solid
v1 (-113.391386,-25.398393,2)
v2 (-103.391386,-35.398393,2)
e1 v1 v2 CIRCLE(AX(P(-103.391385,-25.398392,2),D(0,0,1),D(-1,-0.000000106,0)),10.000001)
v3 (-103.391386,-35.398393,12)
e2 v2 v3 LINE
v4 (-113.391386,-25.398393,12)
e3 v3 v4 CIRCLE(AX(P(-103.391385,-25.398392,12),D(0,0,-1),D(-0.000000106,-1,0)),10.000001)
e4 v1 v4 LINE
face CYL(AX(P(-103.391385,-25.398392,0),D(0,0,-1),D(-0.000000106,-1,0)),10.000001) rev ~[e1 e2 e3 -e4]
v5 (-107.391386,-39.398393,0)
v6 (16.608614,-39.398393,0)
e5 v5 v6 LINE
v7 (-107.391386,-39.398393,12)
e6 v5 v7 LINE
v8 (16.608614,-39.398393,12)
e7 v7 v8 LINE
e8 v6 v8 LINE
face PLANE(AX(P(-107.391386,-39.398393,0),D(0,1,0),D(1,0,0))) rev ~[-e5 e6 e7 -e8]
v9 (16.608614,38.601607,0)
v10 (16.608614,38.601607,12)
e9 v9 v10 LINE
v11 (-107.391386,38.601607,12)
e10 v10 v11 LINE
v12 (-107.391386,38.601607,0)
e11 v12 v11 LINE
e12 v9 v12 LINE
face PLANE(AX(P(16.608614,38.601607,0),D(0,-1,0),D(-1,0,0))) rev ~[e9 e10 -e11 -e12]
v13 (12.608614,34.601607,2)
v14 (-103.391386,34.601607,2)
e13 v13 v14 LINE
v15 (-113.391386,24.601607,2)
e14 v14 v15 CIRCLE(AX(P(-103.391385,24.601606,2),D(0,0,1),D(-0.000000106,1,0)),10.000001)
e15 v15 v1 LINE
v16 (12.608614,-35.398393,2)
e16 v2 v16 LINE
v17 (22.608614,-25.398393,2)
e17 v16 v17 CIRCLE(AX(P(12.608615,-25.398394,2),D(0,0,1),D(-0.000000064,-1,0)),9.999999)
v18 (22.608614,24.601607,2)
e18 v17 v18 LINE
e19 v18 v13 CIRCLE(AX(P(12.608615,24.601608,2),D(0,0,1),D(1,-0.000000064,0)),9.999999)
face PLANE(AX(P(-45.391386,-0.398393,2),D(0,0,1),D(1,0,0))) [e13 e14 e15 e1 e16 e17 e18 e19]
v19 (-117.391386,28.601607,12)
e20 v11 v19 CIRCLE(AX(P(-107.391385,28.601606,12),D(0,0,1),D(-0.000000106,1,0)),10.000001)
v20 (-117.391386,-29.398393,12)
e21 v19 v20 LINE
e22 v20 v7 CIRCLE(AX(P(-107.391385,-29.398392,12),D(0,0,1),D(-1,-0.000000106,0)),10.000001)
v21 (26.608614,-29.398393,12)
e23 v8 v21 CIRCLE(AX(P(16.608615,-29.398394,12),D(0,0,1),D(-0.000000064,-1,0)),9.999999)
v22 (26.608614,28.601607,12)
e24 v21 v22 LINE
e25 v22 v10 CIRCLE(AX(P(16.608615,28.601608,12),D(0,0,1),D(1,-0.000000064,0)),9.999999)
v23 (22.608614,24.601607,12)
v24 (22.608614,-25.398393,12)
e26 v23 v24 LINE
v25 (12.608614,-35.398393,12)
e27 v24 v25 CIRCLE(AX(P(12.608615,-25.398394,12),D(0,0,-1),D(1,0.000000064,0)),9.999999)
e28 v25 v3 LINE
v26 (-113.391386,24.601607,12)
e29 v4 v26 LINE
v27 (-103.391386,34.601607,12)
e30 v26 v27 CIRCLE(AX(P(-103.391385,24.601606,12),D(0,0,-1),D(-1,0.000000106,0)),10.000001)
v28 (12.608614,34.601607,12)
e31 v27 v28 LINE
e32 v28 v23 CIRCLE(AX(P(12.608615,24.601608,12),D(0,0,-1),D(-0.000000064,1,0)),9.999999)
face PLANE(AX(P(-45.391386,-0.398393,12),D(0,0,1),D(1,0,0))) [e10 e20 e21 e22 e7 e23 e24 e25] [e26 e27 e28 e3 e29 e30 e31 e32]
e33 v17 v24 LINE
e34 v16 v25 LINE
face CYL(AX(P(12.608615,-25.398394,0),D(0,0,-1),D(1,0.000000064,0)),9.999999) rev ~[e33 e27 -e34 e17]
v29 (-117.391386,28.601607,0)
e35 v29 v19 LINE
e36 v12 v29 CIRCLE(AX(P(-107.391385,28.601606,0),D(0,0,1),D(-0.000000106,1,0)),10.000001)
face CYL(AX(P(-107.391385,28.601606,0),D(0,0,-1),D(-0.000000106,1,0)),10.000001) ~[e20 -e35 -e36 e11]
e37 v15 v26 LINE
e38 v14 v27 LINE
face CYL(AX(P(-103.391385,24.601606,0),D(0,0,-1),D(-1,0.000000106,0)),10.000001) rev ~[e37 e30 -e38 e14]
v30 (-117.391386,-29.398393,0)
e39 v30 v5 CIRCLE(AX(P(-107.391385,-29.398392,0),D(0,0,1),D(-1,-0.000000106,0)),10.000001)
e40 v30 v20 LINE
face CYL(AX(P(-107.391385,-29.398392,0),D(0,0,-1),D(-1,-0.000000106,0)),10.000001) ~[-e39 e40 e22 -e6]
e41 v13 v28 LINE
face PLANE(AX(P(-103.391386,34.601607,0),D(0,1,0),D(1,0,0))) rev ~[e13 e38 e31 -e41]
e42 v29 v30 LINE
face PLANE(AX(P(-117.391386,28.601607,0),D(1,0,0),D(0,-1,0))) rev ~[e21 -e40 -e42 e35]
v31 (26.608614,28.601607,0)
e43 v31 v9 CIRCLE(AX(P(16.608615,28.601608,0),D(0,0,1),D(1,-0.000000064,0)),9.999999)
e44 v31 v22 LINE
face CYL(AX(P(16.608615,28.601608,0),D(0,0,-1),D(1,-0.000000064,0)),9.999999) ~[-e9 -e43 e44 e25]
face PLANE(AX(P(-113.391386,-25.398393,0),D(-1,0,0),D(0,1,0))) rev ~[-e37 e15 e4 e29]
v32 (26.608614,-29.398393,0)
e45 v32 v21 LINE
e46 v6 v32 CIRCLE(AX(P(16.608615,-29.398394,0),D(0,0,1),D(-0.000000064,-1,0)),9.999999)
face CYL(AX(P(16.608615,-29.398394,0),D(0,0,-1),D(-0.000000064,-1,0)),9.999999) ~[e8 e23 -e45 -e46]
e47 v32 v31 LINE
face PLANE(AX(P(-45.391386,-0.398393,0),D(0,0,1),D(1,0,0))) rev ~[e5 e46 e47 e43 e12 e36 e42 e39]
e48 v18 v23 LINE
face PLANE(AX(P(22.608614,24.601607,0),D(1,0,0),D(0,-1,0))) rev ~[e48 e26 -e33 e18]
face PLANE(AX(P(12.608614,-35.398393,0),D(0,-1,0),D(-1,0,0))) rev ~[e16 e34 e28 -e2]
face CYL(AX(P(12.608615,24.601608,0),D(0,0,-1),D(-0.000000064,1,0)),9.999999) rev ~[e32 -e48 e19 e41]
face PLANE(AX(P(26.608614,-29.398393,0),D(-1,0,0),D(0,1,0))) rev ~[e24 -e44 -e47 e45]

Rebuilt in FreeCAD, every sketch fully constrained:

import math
import FreeCAD as App
import Part
import Sketcher

V = App.Vector
Q = App.Units.Quantity

doc = App.newDocument("Part")
params = doc.addObject("Spreadsheet::Sheet", "Params")
for row, (alias, value) in enumerate([
    ("sketch1_radius", "9.999999 mm"),
    ("sketch1_width", "116 mm"),
    ("sketch1_height", "50 mm"),
    ("pad1_length", "2 mm"),
    ("sketch2_radius", "9.999999 mm"),
    ("sketch2_width", "124 mm"),
    ("sketch2_width2", "116 mm"),
    ("sketch2_height", "58 mm"),
    ("sketch2_height2", "50 mm"),
    ("pad2_length", "12 mm"),
], start=1):
    params.set(f"A{row}", alias)
    params.set(f"B{row}", "=" + value)
    params.setAlias(f"B{row}", alias)

body = doc.addObject("PartDesign::Body", "Body")

sketch1 = body.newObject("Sketcher::SketchObject", "Sketch")
sketch1.AttachmentSupport = (doc.getObject("XY_Plane"), [""])
sketch1.MapMode = "FlatFace"
sketch1.addGeometry([
    Part.ArcOfCircle(Part.Circle(V(13, 25, 0), V(0, 0, 1), 10), math.radians(0), math.radians(90)),
    Part.LineSegment(V(13, 35, 0), V(-103, 35, 0)),
    Part.ArcOfCircle(Part.Circle(V(-103, 25, 0), V(0, 0, 1), 10), math.radians(90), math.radians(180)),
    Part.LineSegment(V(-113, 25, 0), V(-113, -25, 0)),
    Part.ArcOfCircle(Part.Circle(V(-103, -25, 0), V(0, 0, 1), 10), math.radians(-180), math.radians(-90)),
    Part.LineSegment(V(-103, -35, 0), V(13, -35, 0)),
    Part.ArcOfCircle(Part.Circle(V(13, -25, 0), V(0, 0, 1), 10), math.radians(-90), math.radians(0)),
    Part.LineSegment(V(23, -25, 0), V(23, 25, 0)),
], False)
sketch1.addConstraint([
    Sketcher.Constraint("Tangent", 0, 2, 1, 1),
    Sketcher.Constraint("Tangent", 1, 2, 2, 1),
    Sketcher.Constraint("Tangent", 2, 2, 3, 1),
    Sketcher.Constraint("Tangent", 3, 2, 4, 1),
    Sketcher.Constraint("Tangent", 4, 2, 5, 1),
    Sketcher.Constraint("Tangent", 5, 2, 6, 1),
    Sketcher.Constraint("Tangent", 6, 2, 7, 1),
    Sketcher.Constraint("Tangent", 7, 2, 0, 1),
    Sketcher.Constraint("Horizontal", 1),
    Sketcher.Constraint("Vertical", 3),
    Sketcher.Constraint("Horizontal", 5),
    Sketcher.Constraint("Vertical", 7),
    Sketcher.Constraint("Equal", 0, 2),
    Sketcher.Constraint("Equal", 2, 4),
    Sketcher.Constraint("Equal", 4, 6),
    Sketcher.Constraint("Radius", 0, Q("9.999999 mm")),
    Sketcher.Constraint("DistanceX", 1, 2, 1, 1, Q("116 mm")),
    Sketcher.Constraint("DistanceY", 3, 2, 3, 1, Q("50 mm")),
    Sketcher.Constraint("DistanceY", 4, 3, -1, 1, Q("25.398392 mm")),
    Sketcher.Constraint("DistanceX", -1, 1, 0, 3, Q("12.608615 mm")),
])
sketch1.setExpression("Constraints[15]", "Params.sketch1_radius")
sketch1.setExpression("Constraints[16]", "Params.sketch1_width")
sketch1.setExpression("Constraints[17]", "Params.sketch1_height")
pad1 = body.newObject("PartDesign::Pad", "Pad")
pad1.Profile = sketch1
pad1.setExpression("Length", "Params.pad1_length")

sketch2 = body.newObject("Sketcher::SketchObject", "Sketch001")
sketch2.AttachmentSupport = (doc.getObject("XY_Plane"), [""])
sketch2.MapMode = "FlatFace"
sketch2.addGeometry([
    Part.ArcOfCircle(Part.Circle(V(17, 29, 0), V(0, 0, 1), 10), math.radians(0), math.radians(90)),
    Part.LineSegment(V(17, 39, 0), V(-107, 39, 0)),
    Part.ArcOfCircle(Part.Circle(V(-107, 29, 0), V(0, 0, 1), 10), math.radians(90), math.radians(180)),
    Part.LineSegment(V(-117, 29, 0), V(-117, -29, 0)),
    Part.ArcOfCircle(Part.Circle(V(-107, -29, 0), V(0, 0, 1), 10), math.radians(-180), math.radians(-90)),
    Part.LineSegment(V(-107, -39, 0), V(17, -39, 0)),
    Part.ArcOfCircle(Part.Circle(V(17, -29, 0), V(0, 0, 1), 10), math.radians(-90), math.radians(0)),
    Part.LineSegment(V(27, -29, 0), V(27, 29, 0)),
    Part.ArcOfCircle(Part.Circle(V(-103, 25, 0), V(0, 0, 1), 10), math.radians(90), math.radians(180)),
    Part.LineSegment(V(-103, 35, 0), V(13, 35, 0)),
    Part.ArcOfCircle(Part.Circle(V(13, 25, 0), V(0, 0, 1), 10), math.radians(0), math.radians(90)),
    Part.LineSegment(V(23, 25, 0), V(23, -25, 0)),
    Part.ArcOfCircle(Part.Circle(V(13, -25, 0), V(0, 0, 1), 10), math.radians(-90), math.radians(0)),
    Part.LineSegment(V(13, -35, 0), V(-103, -35, 0)),
    Part.ArcOfCircle(Part.Circle(V(-103, -25, 0), V(0, 0, 1), 10), math.radians(-180), math.radians(-90)),
    Part.LineSegment(V(-113, -25, 0), V(-113, 25, 0)),
], False)
sketch2.addConstraint([
    Sketcher.Constraint("Tangent", 0, 2, 1, 1),
    Sketcher.Constraint("Tangent", 1, 2, 2, 1),
    Sketcher.Constraint("Tangent", 2, 2, 3, 1),
    Sketcher.Constraint("Tangent", 3, 2, 4, 1),
    Sketcher.Constraint("Tangent", 4, 2, 5, 1),
    Sketcher.Constraint("Tangent", 5, 2, 6, 1),
    Sketcher.Constraint("Tangent", 6, 2, 7, 1),
    Sketcher.Constraint("Tangent", 7, 2, 0, 1),
    Sketcher.Constraint("Tangent", 8, 1, 9, 1),
    Sketcher.Constraint("Tangent", 9, 2, 10, 2),
    Sketcher.Constraint("Tangent", 10, 1, 11, 1),
    Sketcher.Constraint("Tangent", 11, 2, 12, 2),
    Sketcher.Constraint("Tangent", 12, 1, 13, 1),
    Sketcher.Constraint("Tangent", 13, 2, 14, 2),
    Sketcher.Constraint("Tangent", 14, 1, 15, 1),
    Sketcher.Constraint("Tangent", 15, 2, 8, 2),
    Sketcher.Constraint("Horizontal", 1),
    Sketcher.Constraint("Vertical", 3),
    Sketcher.Constraint("Horizontal", 5),
    Sketcher.Constraint("Vertical", 7),
    Sketcher.Constraint("Horizontal", 9),
    Sketcher.Constraint("Vertical", 11),
    Sketcher.Constraint("Horizontal", 13),
    Sketcher.Constraint("Vertical", 15),
    Sketcher.Constraint("Equal", 0, 2),
    Sketcher.Constraint("Equal", 2, 4),
    Sketcher.Constraint("Equal", 4, 6),
    Sketcher.Constraint("Equal", 6, 8),
    Sketcher.Constraint("Equal", 8, 10),
    Sketcher.Constraint("Equal", 10, 12),
    Sketcher.Constraint("Equal", 12, 14),
    Sketcher.Constraint("Radius", 0, Q("9.999999 mm")),
    Sketcher.Constraint("DistanceX", 1, 2, 1, 1, Q("124 mm")),
    Sketcher.Constraint("DistanceX", 9, 1, 9, 2, Q("116 mm")),
    Sketcher.Constraint("DistanceY", 3, 2, 3, 1, Q("58 mm")),
    Sketcher.Constraint("DistanceY", 11, 2, 11, 1, Q("50 mm")),
    Sketcher.Constraint("DistanceX", 2, 3, 8, 3, Q("4 mm")),
    Sketcher.Constraint("DistanceY", 8, 3, 2, 3, Q("4 mm")),
    Sketcher.Constraint("DistanceY", 4, 3, -1, 1, Q("29.398392 mm")),
    Sketcher.Constraint("DistanceX", -1, 1, 0, 3, Q("16.608615 mm")),
])
sketch2.setExpression("Constraints[31]", "Params.sketch2_radius")
sketch2.setExpression("Constraints[32]", "Params.sketch2_width")
sketch2.setExpression("Constraints[33]", "Params.sketch2_width2")
sketch2.setExpression("Constraints[34]", "Params.sketch2_height")
sketch2.setExpression("Constraints[35]", "Params.sketch2_height2")
pad2 = body.newObject("PartDesign::Pad", "Pad001")
pad2.Profile = sketch2
pad2.setExpression("Length", "Params.pad2_length")

doc.recompute()
